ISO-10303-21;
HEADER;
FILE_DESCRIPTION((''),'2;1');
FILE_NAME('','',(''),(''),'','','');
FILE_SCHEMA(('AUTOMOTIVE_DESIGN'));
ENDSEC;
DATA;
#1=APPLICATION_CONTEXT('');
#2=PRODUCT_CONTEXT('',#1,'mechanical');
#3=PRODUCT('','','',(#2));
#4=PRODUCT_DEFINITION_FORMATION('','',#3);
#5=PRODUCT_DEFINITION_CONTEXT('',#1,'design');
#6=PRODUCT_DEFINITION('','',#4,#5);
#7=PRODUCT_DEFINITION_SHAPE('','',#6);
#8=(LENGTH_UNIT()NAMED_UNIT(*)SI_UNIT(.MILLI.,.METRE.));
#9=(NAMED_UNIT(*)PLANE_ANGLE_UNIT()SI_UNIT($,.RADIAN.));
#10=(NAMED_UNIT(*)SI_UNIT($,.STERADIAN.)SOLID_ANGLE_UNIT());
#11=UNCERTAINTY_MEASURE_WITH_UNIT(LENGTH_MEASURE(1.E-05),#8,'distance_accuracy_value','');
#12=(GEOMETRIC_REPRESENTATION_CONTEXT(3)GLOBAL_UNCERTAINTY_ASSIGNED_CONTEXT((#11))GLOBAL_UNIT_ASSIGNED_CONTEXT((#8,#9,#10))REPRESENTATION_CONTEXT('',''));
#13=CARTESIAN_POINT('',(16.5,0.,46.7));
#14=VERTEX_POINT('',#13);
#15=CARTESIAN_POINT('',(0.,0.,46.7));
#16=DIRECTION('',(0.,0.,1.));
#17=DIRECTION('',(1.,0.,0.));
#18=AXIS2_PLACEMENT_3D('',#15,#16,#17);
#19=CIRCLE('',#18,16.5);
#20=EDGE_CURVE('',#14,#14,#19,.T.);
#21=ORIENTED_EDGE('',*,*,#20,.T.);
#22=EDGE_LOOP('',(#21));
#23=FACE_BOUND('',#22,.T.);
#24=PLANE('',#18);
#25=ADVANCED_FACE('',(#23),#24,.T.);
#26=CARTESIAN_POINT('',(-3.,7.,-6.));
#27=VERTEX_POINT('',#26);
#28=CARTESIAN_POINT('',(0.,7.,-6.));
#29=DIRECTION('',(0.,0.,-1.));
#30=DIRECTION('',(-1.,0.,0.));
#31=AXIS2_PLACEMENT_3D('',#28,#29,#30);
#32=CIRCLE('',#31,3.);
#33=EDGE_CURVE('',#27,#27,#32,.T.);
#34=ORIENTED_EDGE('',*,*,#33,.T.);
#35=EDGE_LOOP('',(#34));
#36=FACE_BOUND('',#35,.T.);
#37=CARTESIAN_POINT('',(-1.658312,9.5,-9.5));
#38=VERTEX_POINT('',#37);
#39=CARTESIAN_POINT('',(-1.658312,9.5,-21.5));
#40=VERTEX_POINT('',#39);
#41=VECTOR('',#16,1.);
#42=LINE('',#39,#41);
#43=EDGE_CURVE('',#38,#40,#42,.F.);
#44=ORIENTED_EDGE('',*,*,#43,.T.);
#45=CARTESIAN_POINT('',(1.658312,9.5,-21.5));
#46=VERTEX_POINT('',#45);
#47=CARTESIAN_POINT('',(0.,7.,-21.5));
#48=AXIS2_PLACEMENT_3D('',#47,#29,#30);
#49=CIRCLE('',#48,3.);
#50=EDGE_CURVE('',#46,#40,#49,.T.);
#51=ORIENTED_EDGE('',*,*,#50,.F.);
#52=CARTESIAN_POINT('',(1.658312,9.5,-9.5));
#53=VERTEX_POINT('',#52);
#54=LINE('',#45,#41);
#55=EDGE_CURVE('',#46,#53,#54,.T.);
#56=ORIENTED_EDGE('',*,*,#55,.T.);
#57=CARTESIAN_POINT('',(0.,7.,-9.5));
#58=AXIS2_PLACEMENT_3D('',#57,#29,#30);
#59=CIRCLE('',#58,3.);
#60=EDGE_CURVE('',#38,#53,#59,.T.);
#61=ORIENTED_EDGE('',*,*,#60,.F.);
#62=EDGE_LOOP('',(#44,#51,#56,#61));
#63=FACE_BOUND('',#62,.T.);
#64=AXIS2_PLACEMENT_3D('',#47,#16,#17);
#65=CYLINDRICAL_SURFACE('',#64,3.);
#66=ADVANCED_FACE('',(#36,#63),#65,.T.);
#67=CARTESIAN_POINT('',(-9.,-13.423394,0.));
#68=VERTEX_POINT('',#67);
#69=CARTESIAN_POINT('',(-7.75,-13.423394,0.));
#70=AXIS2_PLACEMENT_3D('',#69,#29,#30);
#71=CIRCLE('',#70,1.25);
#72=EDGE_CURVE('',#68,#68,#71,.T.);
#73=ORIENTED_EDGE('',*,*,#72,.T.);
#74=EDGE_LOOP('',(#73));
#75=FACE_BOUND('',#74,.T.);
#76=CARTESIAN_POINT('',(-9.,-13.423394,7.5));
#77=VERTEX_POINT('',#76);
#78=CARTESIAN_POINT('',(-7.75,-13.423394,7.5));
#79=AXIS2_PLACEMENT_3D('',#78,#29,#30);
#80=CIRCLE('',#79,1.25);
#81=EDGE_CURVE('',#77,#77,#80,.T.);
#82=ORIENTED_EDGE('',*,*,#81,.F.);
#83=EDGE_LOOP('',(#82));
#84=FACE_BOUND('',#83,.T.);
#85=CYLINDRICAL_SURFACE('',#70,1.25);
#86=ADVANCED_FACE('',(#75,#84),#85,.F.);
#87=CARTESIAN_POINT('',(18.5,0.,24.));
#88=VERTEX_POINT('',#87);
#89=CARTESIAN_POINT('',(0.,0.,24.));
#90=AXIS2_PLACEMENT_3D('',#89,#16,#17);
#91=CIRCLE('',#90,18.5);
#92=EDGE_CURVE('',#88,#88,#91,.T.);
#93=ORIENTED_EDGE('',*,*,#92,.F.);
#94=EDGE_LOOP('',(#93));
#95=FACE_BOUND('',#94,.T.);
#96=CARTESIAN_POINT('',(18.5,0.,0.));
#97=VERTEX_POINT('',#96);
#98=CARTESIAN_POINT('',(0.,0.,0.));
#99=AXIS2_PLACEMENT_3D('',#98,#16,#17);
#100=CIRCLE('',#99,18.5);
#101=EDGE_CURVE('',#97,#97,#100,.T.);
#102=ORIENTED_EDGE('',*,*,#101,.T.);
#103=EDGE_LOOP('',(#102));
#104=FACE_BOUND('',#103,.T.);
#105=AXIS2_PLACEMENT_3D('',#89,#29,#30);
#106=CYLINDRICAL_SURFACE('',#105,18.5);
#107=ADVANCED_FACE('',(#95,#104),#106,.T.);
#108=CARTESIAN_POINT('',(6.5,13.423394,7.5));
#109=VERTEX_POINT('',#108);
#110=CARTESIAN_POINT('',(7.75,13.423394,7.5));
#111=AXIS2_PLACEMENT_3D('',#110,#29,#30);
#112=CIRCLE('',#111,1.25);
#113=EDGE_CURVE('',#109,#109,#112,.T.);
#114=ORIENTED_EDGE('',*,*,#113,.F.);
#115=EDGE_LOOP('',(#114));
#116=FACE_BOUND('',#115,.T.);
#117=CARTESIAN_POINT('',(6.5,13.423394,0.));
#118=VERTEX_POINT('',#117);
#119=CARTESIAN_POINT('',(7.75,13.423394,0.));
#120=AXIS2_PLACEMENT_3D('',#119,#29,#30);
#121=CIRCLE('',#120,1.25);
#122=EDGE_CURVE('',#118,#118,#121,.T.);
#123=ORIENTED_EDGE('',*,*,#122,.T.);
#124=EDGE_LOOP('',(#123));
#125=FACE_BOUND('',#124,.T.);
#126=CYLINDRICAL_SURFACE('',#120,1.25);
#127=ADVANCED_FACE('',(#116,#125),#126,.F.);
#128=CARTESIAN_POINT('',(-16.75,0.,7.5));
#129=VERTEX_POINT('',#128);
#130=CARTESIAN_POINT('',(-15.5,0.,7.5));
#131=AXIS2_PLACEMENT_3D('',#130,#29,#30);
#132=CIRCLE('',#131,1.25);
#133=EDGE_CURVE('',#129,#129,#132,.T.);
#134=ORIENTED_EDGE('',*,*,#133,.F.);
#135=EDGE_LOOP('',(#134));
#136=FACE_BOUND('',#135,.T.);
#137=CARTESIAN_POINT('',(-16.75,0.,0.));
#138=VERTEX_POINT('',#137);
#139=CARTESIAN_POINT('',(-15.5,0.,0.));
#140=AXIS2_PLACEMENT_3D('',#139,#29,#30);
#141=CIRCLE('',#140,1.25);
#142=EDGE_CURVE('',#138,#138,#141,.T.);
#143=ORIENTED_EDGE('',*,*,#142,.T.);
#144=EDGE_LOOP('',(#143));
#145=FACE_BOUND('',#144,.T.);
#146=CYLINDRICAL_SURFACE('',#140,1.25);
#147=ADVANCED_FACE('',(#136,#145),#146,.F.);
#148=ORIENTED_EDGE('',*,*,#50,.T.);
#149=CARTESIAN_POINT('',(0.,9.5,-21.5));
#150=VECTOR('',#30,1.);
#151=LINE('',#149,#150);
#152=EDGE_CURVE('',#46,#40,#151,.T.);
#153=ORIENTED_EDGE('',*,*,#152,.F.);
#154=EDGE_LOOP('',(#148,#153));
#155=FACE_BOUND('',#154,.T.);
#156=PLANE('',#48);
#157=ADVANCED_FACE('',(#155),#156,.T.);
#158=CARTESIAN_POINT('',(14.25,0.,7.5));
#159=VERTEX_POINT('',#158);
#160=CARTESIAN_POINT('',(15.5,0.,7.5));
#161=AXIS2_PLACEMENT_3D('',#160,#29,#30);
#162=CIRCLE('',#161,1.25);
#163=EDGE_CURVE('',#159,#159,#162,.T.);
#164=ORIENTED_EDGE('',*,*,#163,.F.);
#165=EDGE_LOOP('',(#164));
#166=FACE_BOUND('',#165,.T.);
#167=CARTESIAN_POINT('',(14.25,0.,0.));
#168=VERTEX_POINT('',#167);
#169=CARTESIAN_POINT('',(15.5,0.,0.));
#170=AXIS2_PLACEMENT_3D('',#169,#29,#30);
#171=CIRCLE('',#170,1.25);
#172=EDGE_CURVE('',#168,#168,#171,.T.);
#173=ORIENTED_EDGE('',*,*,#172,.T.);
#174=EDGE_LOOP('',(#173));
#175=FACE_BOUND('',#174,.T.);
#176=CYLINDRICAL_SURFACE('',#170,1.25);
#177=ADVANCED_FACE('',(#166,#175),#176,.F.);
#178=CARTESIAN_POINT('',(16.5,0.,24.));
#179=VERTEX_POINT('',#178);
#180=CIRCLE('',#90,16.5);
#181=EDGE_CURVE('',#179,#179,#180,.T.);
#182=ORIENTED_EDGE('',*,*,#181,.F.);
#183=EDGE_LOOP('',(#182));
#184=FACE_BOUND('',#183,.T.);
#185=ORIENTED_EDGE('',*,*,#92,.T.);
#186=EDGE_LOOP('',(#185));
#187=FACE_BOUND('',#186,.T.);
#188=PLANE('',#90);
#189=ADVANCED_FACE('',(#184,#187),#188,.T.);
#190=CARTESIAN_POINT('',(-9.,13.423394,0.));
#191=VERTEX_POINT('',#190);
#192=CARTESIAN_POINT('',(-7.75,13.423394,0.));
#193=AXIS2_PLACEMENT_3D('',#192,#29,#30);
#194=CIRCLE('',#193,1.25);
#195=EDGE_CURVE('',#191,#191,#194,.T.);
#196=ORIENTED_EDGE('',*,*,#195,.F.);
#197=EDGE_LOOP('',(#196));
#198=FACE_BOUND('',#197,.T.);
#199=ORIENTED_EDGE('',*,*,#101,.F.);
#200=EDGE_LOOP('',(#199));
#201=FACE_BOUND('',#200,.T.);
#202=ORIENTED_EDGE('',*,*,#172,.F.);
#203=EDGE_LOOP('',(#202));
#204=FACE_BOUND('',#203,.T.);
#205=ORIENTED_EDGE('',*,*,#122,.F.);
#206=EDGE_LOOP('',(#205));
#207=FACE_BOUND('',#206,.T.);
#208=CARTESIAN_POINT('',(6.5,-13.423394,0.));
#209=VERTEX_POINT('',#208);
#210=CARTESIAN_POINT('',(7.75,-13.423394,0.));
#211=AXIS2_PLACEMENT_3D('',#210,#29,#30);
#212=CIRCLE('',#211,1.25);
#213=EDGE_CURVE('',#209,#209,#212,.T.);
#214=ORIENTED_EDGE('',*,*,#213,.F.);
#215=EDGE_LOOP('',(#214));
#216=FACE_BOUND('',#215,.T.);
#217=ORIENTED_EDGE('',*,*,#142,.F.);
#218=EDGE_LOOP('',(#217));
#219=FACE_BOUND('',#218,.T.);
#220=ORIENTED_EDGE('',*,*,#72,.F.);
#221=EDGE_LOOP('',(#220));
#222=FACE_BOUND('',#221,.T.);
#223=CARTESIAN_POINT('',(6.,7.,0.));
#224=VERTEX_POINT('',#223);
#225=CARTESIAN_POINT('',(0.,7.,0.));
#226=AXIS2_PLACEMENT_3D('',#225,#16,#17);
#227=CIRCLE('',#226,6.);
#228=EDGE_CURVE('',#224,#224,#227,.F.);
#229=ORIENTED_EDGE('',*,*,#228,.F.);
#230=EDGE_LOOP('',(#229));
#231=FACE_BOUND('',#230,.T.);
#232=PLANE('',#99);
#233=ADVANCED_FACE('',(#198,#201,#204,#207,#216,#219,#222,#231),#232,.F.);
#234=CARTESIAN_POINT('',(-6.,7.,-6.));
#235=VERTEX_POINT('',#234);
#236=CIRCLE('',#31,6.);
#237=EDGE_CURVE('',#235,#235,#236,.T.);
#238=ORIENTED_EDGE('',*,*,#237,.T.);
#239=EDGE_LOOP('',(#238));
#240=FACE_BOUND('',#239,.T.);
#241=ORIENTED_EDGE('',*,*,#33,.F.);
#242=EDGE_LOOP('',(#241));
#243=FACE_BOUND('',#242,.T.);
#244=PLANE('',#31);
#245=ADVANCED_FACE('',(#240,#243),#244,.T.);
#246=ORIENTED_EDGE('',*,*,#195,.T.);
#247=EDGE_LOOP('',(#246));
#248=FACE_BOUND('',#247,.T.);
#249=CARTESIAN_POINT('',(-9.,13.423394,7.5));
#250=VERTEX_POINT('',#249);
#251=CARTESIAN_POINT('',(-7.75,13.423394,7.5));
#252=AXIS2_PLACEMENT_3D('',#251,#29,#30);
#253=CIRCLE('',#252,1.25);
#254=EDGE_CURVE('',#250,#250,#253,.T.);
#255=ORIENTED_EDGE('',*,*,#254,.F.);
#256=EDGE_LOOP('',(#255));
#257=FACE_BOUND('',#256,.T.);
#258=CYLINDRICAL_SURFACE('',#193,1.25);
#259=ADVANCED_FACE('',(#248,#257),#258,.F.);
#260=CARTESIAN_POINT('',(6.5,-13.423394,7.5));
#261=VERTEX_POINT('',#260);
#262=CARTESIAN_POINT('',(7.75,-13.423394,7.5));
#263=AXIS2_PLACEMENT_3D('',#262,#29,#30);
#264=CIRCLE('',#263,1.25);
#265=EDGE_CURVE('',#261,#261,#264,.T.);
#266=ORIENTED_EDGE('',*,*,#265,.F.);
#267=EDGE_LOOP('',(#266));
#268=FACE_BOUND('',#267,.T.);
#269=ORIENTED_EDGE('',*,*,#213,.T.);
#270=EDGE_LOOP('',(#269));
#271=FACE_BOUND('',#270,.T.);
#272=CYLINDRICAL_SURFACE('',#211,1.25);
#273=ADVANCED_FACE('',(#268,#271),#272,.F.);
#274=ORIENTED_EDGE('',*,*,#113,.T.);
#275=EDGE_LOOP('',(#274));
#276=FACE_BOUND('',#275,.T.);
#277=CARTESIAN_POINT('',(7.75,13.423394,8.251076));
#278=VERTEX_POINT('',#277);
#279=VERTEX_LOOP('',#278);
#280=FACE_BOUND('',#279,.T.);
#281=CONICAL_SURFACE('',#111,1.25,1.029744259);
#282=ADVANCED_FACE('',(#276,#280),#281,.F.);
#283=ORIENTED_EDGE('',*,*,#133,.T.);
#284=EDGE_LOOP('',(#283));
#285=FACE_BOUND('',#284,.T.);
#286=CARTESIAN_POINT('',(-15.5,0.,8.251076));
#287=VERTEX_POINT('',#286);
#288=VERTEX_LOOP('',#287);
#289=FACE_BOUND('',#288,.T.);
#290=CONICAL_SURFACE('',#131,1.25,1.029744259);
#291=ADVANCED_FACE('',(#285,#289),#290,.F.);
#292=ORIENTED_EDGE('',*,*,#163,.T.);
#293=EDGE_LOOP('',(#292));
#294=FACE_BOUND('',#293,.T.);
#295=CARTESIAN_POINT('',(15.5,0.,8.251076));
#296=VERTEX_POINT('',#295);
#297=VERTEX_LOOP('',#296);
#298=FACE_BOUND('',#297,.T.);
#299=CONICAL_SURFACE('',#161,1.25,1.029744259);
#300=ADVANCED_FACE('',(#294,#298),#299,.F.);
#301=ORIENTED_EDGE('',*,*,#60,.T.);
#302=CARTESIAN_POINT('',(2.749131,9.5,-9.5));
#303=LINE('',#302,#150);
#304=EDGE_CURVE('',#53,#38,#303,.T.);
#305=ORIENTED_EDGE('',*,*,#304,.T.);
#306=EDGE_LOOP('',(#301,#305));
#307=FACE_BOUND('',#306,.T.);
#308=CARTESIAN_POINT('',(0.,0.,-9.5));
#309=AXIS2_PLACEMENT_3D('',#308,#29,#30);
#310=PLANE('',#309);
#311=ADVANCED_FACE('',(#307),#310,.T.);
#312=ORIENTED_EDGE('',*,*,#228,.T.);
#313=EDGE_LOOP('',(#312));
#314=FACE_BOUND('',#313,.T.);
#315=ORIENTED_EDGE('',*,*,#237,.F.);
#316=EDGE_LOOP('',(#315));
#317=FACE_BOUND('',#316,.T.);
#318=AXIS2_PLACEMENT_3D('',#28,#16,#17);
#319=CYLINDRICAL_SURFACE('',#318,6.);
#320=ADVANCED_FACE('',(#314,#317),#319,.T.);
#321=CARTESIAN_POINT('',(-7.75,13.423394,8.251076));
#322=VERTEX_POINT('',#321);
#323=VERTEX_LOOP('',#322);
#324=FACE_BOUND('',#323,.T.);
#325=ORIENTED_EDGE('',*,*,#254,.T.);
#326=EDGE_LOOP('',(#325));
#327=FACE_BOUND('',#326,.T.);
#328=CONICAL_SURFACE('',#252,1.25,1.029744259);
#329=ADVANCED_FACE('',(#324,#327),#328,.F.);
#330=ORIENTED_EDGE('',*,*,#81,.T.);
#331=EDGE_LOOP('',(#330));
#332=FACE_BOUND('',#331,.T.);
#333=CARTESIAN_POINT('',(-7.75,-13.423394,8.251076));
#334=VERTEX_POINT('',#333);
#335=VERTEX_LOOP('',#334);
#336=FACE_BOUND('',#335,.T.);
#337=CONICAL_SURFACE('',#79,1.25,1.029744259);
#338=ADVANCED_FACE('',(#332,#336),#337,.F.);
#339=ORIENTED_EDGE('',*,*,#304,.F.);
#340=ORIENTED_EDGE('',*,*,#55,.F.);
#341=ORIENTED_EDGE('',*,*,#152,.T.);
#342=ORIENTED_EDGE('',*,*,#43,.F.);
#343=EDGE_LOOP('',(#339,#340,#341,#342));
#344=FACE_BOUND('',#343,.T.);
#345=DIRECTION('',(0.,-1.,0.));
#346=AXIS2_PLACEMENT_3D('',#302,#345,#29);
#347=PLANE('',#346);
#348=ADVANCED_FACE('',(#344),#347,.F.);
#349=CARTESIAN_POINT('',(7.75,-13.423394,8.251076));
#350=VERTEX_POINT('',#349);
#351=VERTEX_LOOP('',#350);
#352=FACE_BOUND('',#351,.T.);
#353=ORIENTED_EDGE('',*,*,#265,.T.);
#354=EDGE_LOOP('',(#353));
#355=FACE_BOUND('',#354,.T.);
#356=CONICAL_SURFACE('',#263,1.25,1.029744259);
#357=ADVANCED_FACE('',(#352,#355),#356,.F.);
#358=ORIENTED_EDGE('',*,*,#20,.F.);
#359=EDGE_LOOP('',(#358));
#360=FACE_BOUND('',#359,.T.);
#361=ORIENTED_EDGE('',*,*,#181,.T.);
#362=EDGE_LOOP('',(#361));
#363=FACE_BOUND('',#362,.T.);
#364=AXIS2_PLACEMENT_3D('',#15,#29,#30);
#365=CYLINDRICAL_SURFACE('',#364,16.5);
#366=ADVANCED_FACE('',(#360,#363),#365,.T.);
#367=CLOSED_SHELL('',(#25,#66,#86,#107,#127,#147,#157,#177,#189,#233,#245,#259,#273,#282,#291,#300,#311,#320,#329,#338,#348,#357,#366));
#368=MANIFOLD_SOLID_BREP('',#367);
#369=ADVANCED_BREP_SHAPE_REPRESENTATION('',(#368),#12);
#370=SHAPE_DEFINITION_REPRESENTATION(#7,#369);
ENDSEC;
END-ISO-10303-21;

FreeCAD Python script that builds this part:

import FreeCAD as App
import Part
import Sketcher
from FreeCAD import Vector
Q = App.Units.Quantity


def add_polygon(sketch, points):
    """Adds a closed chain of lines whose ends are joined by coincident constraints."""
    first, n = sketch.GeometryCount, len(points)
    for a, b in zip(points, points[1:] + points[:1]):
        sketch.addGeometry(Part.LineSegment(App.Vector(*a, 0), App.Vector(*b, 0)), False)
    for i in range(n):
        sketch.addConstraint(Sketcher.Constraint("Coincident", first + i, 2, first + (i + 1) % n, 1))

doc = App.newDocument("Part")
params = doc.addObject("Spreadsheet::Sheet", "Params")
for row, (alias, value) in enumerate([
    ("sketch1_diameter", "37 mm"),
    ("pad1_length", "24 mm"),
    ("sketch2_diameter", "33 mm"),
    ("pad2_length", "22.7 mm"),
    ("sketch3_diameter", "12 mm"),
    ("pad3_length", "6 mm"),
    ("sketch4_diameter", "6 mm"),
    ("pad4_length", "15.5 mm"),
    ("pocket1_length", "12 mm"),
    ("sketch6_diameter", "2.5 mm"),
    ("hole_diameter", "2.5 mm"),
    ("hole_depth", "7.5 mm"),
], start=1):
    params.set(f"A{row}", alias)
    params.set(f"B{row}", "=" + value)
    params.setAlias(f"B{row}", alias)

body = doc.addObject("PartDesign::Body", "Body")

# Sketch on XY plane
sketch1 = doc.addObject("Sketcher::SketchObject", "Sketch")
body.addObject(sketch1)
sketch1.AttachmentSupport = (doc.XY_Plane, [""])
sketch1.MapMode = "FlatFace"
sketch1.addGeometry(Part.Circle(Vector(0, 0, 0), Vector(0, 0, 1), 18.5), False)
sketch1.addConstraint(Sketcher.Constraint("Coincident", 0, 3, -1, 1))
sketch1.addConstraint(Sketcher.Constraint("Diameter", 0, Q("37 mm")))
sketch1.setExpression("Constraints[1]", "Params.sketch1_diameter")
pad1 = doc.addObject("PartDesign::Pad", "Pad")
body.addObject(pad1)
pad1.Profile = sketch1
pad1.setExpression("Length", "Params.pad1_length")

# Sketch on XY plane
sketch2 = doc.addObject("Sketcher::SketchObject", "Sketch001")
body.addObject(sketch2)
sketch2.AttachmentSupport = (doc.XY_Plane, [""])
sketch2.MapMode = "FlatFace"
sketch2.AttachmentOffset = App.Placement(Vector(0, 0, 24), App.Rotation())
sketch2.addGeometry(Part.Circle(Vector(0, 0, 0), Vector(0, 0, 1), 16.5), False)
sketch2.addConstraint(Sketcher.Constraint("Coincident", 0, 3, -1, 1))
sketch2.addConstraint(Sketcher.Constraint("Diameter", 0, Q("33 mm")))
sketch2.setExpression("Constraints[1]", "Params.sketch2_diameter")
pad2 = doc.addObject("PartDesign::Pad", "Pad001")
body.addObject(pad2)
pad2.Profile = sketch2
pad2.setExpression("Length", "Params.pad2_length")

# Sketch on XY plane
sketch3 = doc.addObject("Sketcher::SketchObject", "Sketch002")
body.addObject(sketch3)
sketch3.AttachmentSupport = (doc.XY_Plane, [""])
sketch3.MapMode = "FlatFace"
sketch3.addGeometry(Part.Circle(Vector(0, 7, 0), Vector(0, 0, 1), 6), False)
sketch3.addConstraint(Sketcher.Constraint("PointOnObject", 0, 3, -2))
sketch3.addConstraint(Sketcher.Constraint("Diameter", 0, Q("12 mm")))
sketch3.addConstraint(Sketcher.Constraint("DistanceY", -1, 1, 0, 3, Q("7 mm")))
sketch3.setExpression("Constraints[1]", "Params.sketch3_diameter")
pad3 = doc.addObject("PartDesign::Pad", "Pad002")
body.addObject(pad3)
pad3.Profile = sketch3
pad3.setExpression("Length", "Params.pad3_length")
pad3.Reversed = True

# Sketch on XY plane
sketch4 = doc.addObject("Sketcher::SketchObject", "Sketch003")
body.addObject(sketch4)
sketch4.AttachmentSupport = (doc.XY_Plane, [""])
sketch4.MapMode = "FlatFace"
sketch4.AttachmentOffset = App.Placement(Vector(0, 0, -6), App.Rotation())
sketch4.addGeometry(Part.Circle(Vector(0, 7, 0), Vector(0, 0, 1), 3), False)
sketch4.addConstraint(Sketcher.Constraint("PointOnObject", 0, 3, -2))
sketch4.addConstraint(Sketcher.Constraint("Diameter", 0, Q("6 mm")))
sketch4.addConstraint(Sketcher.Constraint("DistanceY", -1, 1, 0, 3, Q("7 mm")))
sketch4.setExpression("Constraints[1]", "Params.sketch4_diameter")
pad4 = doc.addObject("PartDesign::Pad", "Pad003")
body.addObject(pad4)
pad4.Profile = sketch4
pad4.setExpression("Length", "Params.pad4_length")
pad4.Reversed = True

# Sketch on XY plane
sketch5 = doc.addObject("Sketcher::SketchObject", "Sketch004")
body.addObject(sketch5)
sketch5.AttachmentSupport = (doc.XY_Plane, [""])
sketch5.MapMode = "FlatFace"
sketch5.AttachmentOffset = App.Placement(Vector(0, 0, -21.5), App.Rotation())
add_polygon(sketch5, [(2.749131, 12.4225), (2.749131, 9.5), (-3.194936, 9.5), (-3.194936, 12.4225)])  # lines 0-3
sketch5.addConstraint(Sketcher.Constraint("Vertical", 0))
sketch5.addConstraint(Sketcher.Constraint("Horizontal", 1))
sketch5.addConstraint(Sketcher.Constraint("Vertical", 2))
sketch5.addConstraint(Sketcher.Constraint("Horizontal", 3))
sketch5.addConstraint(Sketcher.Constraint("DistanceY", -1, 1, 0, 2, Q("9.5 mm")))
sketch5.addConstraint(Sketcher.Constraint("DistanceY", 0, 2, 0, 1, Q("2.9225 mm")))
sketch5.addConstraint(Sketcher.Constraint("DistanceX", 1, 2, 1, 1, Q("5.944067 mm")))
sketch5.addConstraint(Sketcher.Constraint("DistanceX", -1, 1, 0, 2, Q("2.749131 mm")))
pocket1 = doc.addObject("PartDesign::Pocket", "Pocket")
body.addObject(pocket1)
pocket1.Profile = sketch5
pocket1.setExpression("Length", "Params.pocket1_length")
pocket1.Reversed = True

# Sketch on XY plane
sketch6 = doc.addObject("Sketcher::SketchObject", "Sketch005")
body.addObject(sketch6)
sketch6.AttachmentSupport = (doc.XY_Plane, [""])
sketch6.MapMode = "FlatFace"
sketch6.addGeometry(Part.Circle(Vector(15.5, 0, 0), Vector(0, 0, 1), 1.25), False)
sketch6.addGeometry(Part.Circle(Vector(7.75, 13.423394, 0), Vector(0, 0, 1), 1.25), False)
sketch6.addGeometry(Part.Circle(Vector(-7.75, 13.423394, 0), Vector(0, 0, 1), 1.25), False)
sketch6.addGeometry(Part.Circle(Vector(-15.5, 0, 0), Vector(0, 0, 1), 1.25), False)
sketch6.addGeometry(Part.Circle(Vector(-7.75, -13.423394, 0), Vector(0, 0, 1), 1.25), False)
sketch6.addGeometry(Part.Circle(Vector(7.75, -13.423394, 0), Vector(0, 0, 1), 1.25), False)
sketch6.addConstraint(Sketcher.Constraint("Equal", 0, 1))
sketch6.addConstraint(Sketcher.Constraint("Equal", 1, 2))
sketch6.addConstraint(Sketcher.Constraint("Equal", 2, 3))
sketch6.addConstraint(Sketcher.Constraint("Equal", 3, 4))
sketch6.addConstraint(Sketcher.Constraint("Equal", 4, 5))
sketch6.addConstraint(Sketcher.Constraint("Symmetric", 0, 3, 3, 3, -1, 1))
sketch6.addConstraint(Sketcher.Constraint("Symmetric", 1, 3, 4, 3, -1, 1))
sketch6.addConstraint(Sketcher.Constraint("Symmetric", 2, 3, 5, 3, -1, 1))
sketch6.addConstraint(Sketcher.Constraint("Symmetric", 1, 3, 2, 3, -2))
sketch6.addConstraint(Sketcher.Constraint("PointOnObject", 0, 3, -1))
sketch6.addConstraint(Sketcher.Constraint("Diameter", 0, Q("2.5 mm")))
sketch6.addConstraint(Sketcher.Constraint("DistanceX", 3, 3, 0, 3, Q("31 mm")))
sketch6.addConstraint(Sketcher.Constraint("DistanceX", 2, 3, 1, 3, Q("15.5 mm")))
sketch6.addConstraint(Sketcher.Constraint("DistanceY", -1, 1, 1, 3, Q("13.423394 mm")))
sketch6.setExpression("Constraints[10]", "Params.sketch6_diameter")
doc.recompute()
hole = doc.addObject("PartDesign::Hole", "Hole")
body.addObject(hole)
hole.Profile = sketch6
hole.ThreadType = "None"
hole.setExpression("Diameter", "Params.hole_diameter")
hole.DepthType = "Dimension"
hole.setExpression("Depth", "Params.hole_depth")
hole.DrillPoint = "Angled"
hole.DrillPointAngle = 118
hole.Reversed = True

doc.recompute()
